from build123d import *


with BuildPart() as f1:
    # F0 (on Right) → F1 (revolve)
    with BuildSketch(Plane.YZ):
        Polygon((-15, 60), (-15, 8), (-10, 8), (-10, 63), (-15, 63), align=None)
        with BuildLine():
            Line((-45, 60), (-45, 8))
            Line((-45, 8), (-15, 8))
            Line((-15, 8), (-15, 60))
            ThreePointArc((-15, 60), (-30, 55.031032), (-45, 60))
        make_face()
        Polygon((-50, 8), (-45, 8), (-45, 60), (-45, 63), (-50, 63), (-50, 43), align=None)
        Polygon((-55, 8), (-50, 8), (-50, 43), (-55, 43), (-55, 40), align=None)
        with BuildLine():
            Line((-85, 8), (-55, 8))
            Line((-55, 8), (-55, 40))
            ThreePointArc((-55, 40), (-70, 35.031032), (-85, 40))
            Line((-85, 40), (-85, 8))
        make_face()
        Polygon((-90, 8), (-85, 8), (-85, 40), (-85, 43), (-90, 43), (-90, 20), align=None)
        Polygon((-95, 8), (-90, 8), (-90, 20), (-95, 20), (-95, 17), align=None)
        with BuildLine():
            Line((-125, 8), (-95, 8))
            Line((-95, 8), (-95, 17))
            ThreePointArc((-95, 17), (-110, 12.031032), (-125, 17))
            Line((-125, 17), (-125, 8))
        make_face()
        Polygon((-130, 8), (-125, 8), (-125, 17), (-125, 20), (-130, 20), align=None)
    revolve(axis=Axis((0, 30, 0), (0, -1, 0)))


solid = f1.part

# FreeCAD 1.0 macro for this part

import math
import FreeCAD as App
import Part
import Sketcher
Q = App.Units.Quantity

doc = App.newDocument("Part")
body = doc.addObject("PartDesign::Body", "Body")

sketch1 = doc.addObject("Sketcher::SketchObject", "Sketch")
body.addObject(sketch1)
sketch1.AttachmentSupport = (doc.YZ_Plane, [""])
sketch1.MapMode = "FlatFace"
sketch1.addGeometry([
    Part.LineSegment(App.Vector(-10, 8, 0), App.Vector(-10, 63, 0)),
    Part.LineSegment(App.Vector(-10, 63, 0), App.Vector(-15, 63, 0)),
    Part.LineSegment(App.Vector(-15, 63, 0), App.Vector(-15, 60, 0)),
    Part.ArcOfCircle(Part.Circle(App.Vector(-30, 80.2, 0), App.Vector(0, 0, 1), 25.1), math.radians(-127), math.radians(-53)),
    Part.LineSegment(App.Vector(-45, 60, 0), App.Vector(-45, 63, 0)),
    Part.LineSegment(App.Vector(-45, 63, 0), App.Vector(-50, 63, 0)),
    Part.LineSegment(App.Vector(-50, 63, 0), App.Vector(-50, 43, 0)),
    Part.LineSegment(App.Vector(-50, 43, 0), App.Vector(-55, 43, 0)),
    Part.LineSegment(App.Vector(-55, 43, 0), App.Vector(-55, 40, 0)),
    Part.ArcOfCircle(Part.Circle(App.Vector(-70, 60.2, 0), App.Vector(0, 0, 1), 25.1), math.radians(-127), math.radians(-53)),
    Part.LineSegment(App.Vector(-85, 40, 0), App.Vector(-85, 43, 0)),
    Part.LineSegment(App.Vector(-85, 43, 0), App.Vector(-90, 43, 0)),
    Part.LineSegment(App.Vector(-90, 43, 0), App.Vector(-90, 20, 0)),
    Part.LineSegment(App.Vector(-90, 20, 0), App.Vector(-95, 20, 0)),
    Part.LineSegment(App.Vector(-95, 20, 0), App.Vector(-95, 17, 0)),
    Part.ArcOfCircle(Part.Circle(App.Vector(-110, 37.2, 0), App.Vector(0, 0, 1), 25.1), math.radians(-127), math.radians(-53)),
    Part.LineSegment(App.Vector(-125, 17, 0), App.Vector(-125, 20, 0)),
    Part.LineSegment(App.Vector(-125, 20, 0), App.Vector(-130, 20, 0)),
    Part.LineSegment(App.Vector(-130, 20, 0), App.Vector(-130, 8, 0)),
    Part.LineSegment(App.Vector(-130, 8, 0), App.Vector(-10, 8, 0)),
], False)
sketch1.addConstraint([
    Sketcher.Constraint("Coincident", 0, 2, 1, 1),
    Sketcher.Constraint("Coincident", 1, 2, 2, 1),
    Sketcher.Constraint("Coincident", 2, 2, 3, 2),
    Sketcher.Constraint("Coincident", 3, 1, 4, 1),
    Sketcher.Constraint("Coincident", 4, 2, 5, 1),
    Sketcher.Constraint("Coincident", 5, 2, 6, 1),
    Sketcher.Constraint("Coincident", 6, 2, 7, 1),
    Sketcher.Constraint("Coincident", 7, 2, 8, 1),
    Sketcher.Constraint("Coincident", 8, 2, 9, 2),
    Sketcher.Constraint("Coincident", 9, 1, 10, 1),
    Sketcher.Constraint("Coincident", 10, 2, 11, 1),
    Sketcher.Constraint("Coincident", 11, 2, 12, 1),
    Sketcher.Constraint("Coincident", 12, 2, 13, 1),
    Sketcher.Constraint("Coincident", 13, 2, 14, 1),
    Sketcher.Constraint("Coincident", 14, 2, 15, 2),
    Sketcher.Constraint("Coincident", 15, 1, 16, 1),
    Sketcher.Constraint("Coincident", 16, 2, 17, 1),
    Sketcher.Constraint("Coincident", 17, 2, 18, 1),
    Sketcher.Constraint("Coincident", 18, 2, 19, 1),
    Sketcher.Constraint("Coincident", 19, 2, 0, 1),
    Sketcher.Constraint("Vertical", 0),
    Sketcher.Constraint("Horizontal", 1),
    Sketcher.Constraint("Vertical", 2),
    Sketcher.Constraint("Vertical", 4),
    Sketcher.Constraint("Horizontal", 5),
    Sketcher.Constraint("Vertical", 6),
    Sketcher.Constraint("Horizontal", 7),
    Sketcher.Constraint("Vertical", 8),
    Sketcher.Constraint("Vertical", 10),
    Sketcher.Constraint("Horizontal", 11),
    Sketcher.Constraint("Vertical", 12),
    Sketcher.Constraint("Horizontal", 13),
    Sketcher.Constraint("Vertical", 14),
    Sketcher.Constraint("Vertical", 16),
    Sketcher.Constraint("Horizontal", 17),
    Sketcher.Constraint("Vertical", 18),
    Sketcher.Constraint("Horizontal", 19),
    Sketcher.Constraint("Equal", 3, 9),
    Sketcher.Constraint("Equal", 9, 15),
    Sketcher.Constraint("Horizontal", 2, 2, 3, 1),
    Sketcher.Constraint("Horizontal", 1, 2, 4, 2),
    Sketcher.Constraint("Horizontal", 8, 2, 9, 1),
    Sketcher.Constraint("Horizontal", 7, 2, 10, 2),
    Sketcher.Constraint("Horizontal", 14, 2, 15, 1),
    Sketcher.Constraint("Horizontal", 13, 2, 16, 2),
    Sketcher.Constraint("Equal", 1, 5),
    Sketcher.Constraint("Equal", 5, 7),
    Sketcher.Constraint("Equal", 7, 11),
    Sketcher.Constraint("Equal", 11, 13),
    Sketcher.Constraint("Equal", 13, 17),
    Sketcher.Constraint("Equal", 4, 8),
    Sketcher.Constraint("Equal", 10, 14),
    Sketcher.Constraint("DistanceX", 1, 2, 1, 1, Q("5 mm")),
    Sketcher.Constraint("DistanceX", 19, 1, 19, 2, Q("120 mm")),
    Sketcher.Constraint("DistanceY", 0, 1, 0, 2, Q("55 mm")),
    Sketcher.Constraint("DistanceY", 2, 2, 2, 1, Q("3 mm")),
    Sketcher.Constraint("DistanceY", 6, 2, 6, 1, Q("20 mm")),
    Sketcher.Constraint("DistanceY", 12, 2, 12, 1, Q("23 mm")),
    Sketcher.Constraint("DistanceX", 3, 3, -1, 1, Q("30 mm")),
    Sketcher.Constraint("DistanceX", 9, 3, -1, 1, Q("70 mm")),
    Sketcher.Constraint("DistanceX", 15, 3, -1, 1, Q("110 mm")),
    Sketcher.Constraint("DistanceY", -1, 1, 0, 2, Q("63 mm")),
    Sketcher.Constraint("Radius", 3, Q("25.125 mm")),
])
revolution = doc.addObject("PartDesign::Revolution", "Revolution")
body.addObject(revolution)
revolution.Profile = sketch1
revolution.ReferenceAxis = (sketch1, ["H_Axis"])
revolution.Angle = 360

doc.recompute()
